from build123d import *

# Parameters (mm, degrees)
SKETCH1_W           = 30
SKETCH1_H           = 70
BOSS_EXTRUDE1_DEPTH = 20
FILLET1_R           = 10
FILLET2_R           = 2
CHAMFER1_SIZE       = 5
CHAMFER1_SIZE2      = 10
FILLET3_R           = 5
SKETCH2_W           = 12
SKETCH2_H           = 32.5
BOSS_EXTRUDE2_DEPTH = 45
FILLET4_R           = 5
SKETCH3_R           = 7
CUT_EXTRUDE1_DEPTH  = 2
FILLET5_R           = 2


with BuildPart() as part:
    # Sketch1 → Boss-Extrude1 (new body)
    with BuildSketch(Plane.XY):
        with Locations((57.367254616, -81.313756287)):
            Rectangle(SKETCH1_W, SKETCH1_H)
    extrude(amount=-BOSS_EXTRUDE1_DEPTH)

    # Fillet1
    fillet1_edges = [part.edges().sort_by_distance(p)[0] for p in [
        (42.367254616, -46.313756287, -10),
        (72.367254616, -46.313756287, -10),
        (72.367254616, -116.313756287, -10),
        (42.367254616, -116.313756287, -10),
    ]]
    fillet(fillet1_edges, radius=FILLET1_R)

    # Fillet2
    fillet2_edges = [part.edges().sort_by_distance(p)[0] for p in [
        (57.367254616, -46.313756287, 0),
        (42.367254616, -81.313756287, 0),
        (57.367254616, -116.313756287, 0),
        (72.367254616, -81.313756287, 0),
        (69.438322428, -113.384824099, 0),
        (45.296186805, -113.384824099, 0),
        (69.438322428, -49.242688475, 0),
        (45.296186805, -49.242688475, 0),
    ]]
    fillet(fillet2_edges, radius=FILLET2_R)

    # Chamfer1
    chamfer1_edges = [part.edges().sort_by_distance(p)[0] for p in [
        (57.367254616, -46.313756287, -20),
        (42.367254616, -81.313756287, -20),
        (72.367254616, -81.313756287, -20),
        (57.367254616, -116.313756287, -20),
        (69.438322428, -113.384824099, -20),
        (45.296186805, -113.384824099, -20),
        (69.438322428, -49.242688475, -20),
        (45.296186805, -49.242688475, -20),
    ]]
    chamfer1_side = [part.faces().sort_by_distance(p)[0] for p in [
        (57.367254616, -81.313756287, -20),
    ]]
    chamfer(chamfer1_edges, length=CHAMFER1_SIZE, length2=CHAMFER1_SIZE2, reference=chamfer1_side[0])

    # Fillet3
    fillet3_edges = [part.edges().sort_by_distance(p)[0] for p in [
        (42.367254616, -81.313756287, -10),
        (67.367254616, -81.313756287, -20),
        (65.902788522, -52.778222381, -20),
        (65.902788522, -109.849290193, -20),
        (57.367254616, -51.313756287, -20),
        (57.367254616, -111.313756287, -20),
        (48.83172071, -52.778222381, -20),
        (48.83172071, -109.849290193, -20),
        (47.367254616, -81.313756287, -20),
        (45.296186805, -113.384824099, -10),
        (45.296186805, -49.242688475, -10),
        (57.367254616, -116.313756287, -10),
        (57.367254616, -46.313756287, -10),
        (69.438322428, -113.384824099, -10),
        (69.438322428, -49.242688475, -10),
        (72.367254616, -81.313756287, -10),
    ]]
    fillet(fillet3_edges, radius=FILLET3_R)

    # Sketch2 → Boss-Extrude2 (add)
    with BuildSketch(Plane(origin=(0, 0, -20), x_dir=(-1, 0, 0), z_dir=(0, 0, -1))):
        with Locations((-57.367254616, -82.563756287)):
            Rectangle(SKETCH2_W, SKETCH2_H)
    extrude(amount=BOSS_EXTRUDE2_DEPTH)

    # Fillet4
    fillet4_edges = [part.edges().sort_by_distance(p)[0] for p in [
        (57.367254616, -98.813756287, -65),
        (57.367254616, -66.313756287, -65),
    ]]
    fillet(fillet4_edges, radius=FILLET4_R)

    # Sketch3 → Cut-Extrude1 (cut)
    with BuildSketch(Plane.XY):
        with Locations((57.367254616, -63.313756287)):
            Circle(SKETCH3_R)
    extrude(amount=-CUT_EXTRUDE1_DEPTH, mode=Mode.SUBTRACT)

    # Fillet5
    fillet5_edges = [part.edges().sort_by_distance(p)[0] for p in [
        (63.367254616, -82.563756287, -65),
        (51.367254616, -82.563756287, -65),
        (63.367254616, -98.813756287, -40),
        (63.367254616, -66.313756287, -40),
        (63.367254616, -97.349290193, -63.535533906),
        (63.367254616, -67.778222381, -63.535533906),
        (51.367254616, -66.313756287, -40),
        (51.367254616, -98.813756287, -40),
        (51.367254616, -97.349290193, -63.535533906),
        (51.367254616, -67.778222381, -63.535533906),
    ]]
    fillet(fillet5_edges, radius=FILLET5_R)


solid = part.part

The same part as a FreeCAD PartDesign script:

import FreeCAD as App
import Part
import Sketcher

V = App.Vector


def edges_at(feature, points):
    """Names of the edges that pass closest to the given points."""
    edges = feature.Shape.Edges
    near = lambda p: min(range(len(edges)), key=lambda i: edges[i].distToShape(Part.Vertex(*p))[0])
    return sorted({f"Edge{near(p) + 1}" for p in points})

doc = App.newDocument("Part")
body = doc.addObject("PartDesign::Body", "Body")

# Sketch on XY plane
sketch1 = body.newObject("Sketcher::SketchObject", "Sketch")
sketch1.AttachmentSupport = (doc.getObject("XY_Plane"), [""])
sketch1.MapMode = "FlatFace"
sketch1.addGeometry([
    Part.LineSegment(V(42.367255, -46.313756, 0), V(42.367255, -116.313756, 0)),
    Part.LineSegment(V(42.367255, -116.313756, 0), V(72.367255, -116.313756, 0)),
    Part.LineSegment(V(72.367255, -116.313756, 0), V(72.367255, -46.313756, 0)),
    Part.LineSegment(V(72.367255, -46.313756, 0), V(42.367255, -46.313756, 0)),
], False)
sketch1.addConstraint([
    Sketcher.Constraint("Coincident", 0, 2, 1, 1),
    Sketcher.Constraint("Coincident", 1, 2, 2, 1),
    Sketcher.Constraint("Coincident", 2, 2, 3, 1),
    Sketcher.Constraint("Coincident", 3, 2, 0, 1),
    Sketcher.Constraint("Vertical", 0),
    Sketcher.Constraint("Horizontal", 1),
    Sketcher.Constraint("Vertical", 2),
    Sketcher.Constraint("Horizontal", 3),
    Sketcher.Constraint("DistanceX", 1, 1, 1, 2, 30.0),
    Sketcher.Constraint("DistanceY", 0, 2, 0, 1, 70.0),
    Sketcher.Constraint("DistanceX", -1, 1, 0, 2, 42.367255),
    Sketcher.Constraint("DistanceY", 0, 2, -1, 1, 116.313756),
])
pad1 = body.newObject("PartDesign::Pad", "Pad")
pad1.Profile = sketch1
pad1.Length = 20
pad1.Reversed = True
doc.recompute()

fillet = body.newObject("PartDesign::Fillet", "Fillet")
fillet.Base = (pad1, edges_at(pad1, [
    (42.367, -46.314, -10),
    (72.367, -46.314, -10),
    (72.367, -116.314, -10),
    (42.367, -116.314, -10),
]))
fillet.Radius = 10
doc.recompute()

fillet2 = body.newObject("PartDesign::Fillet", "Fillet001")
fillet2.Base = (fillet, edges_at(fillet, [
    (57.367, -46.314, 0),
    (42.367, -81.314, 0),
    (57.367, -116.314, 0),
    (72.367, -81.314, 0),
    (69.438, -113.385, 0),
    (45.296, -113.385, 0),
    (69.438, -49.243, 0),
    (45.296, -49.243, 0),
]))
fillet2.Radius = 2
doc.recompute()

chamfer = body.newObject("PartDesign::Chamfer", "Chamfer")
chamfer.Base = (fillet2, edges_at(fillet2, [
    (57.367, -46.314, -20),
    (42.367, -81.314, -20),
    (72.367, -81.314, -20),
    (57.367, -116.314, -20),
    (69.438, -113.385, -20),
    (45.296, -113.385, -20),
    (69.438, -49.243, -20),
    (45.296, -49.243, -20),
]))
chamfer.ChamferType = "Two distances"
chamfer.Size = 5
chamfer.Size2 = 10
doc.recompute()

fillet3 = body.newObject("PartDesign::Fillet", "Fillet002")
fillet3.Base = (chamfer, edges_at(chamfer, [
    (42.367, -81.314, -10),
    (67.367, -81.314, -20),
    (65.903, -52.778, -20),
    (65.903, -109.849, -20),
    (57.367, -51.314, -20),
    (57.367, -111.314, -20),
    (48.832, -52.778, -20),
    (48.832, -109.849, -20),
    (47.367, -81.314, -20),
    (45.296, -113.385, -10),
    (45.296, -49.243, -10),
    (57.367, -116.314, -10),
    (57.367, -46.314, -10),
    (69.438, -113.385, -10),
    (69.438, -49.243, -10),
    (72.367, -81.314, -10),
]))
fillet3.Radius = 5

# Sketch on XY plane
sketch2 = body.newObject("Sketcher::SketchObject", "Sketch001")
sketch2.AttachmentSupport = (doc.getObject("XY_Plane"), [""])
sketch2.MapMode = "FlatFace"
sketch2.AttachmentOffset = App.Placement(V(0, 0, -20), App.Rotation())
sketch2.addGeometry([
    Part.LineSegment(V(63.367255, -66.313756, 0), V(63.367255, -98.813756, 0)),
    Part.LineSegment(V(63.367255, -98.813756, 0), V(51.367255, -98.813756, 0)),
    Part.LineSegment(V(51.367255, -98.813756, 0), V(51.367255, -66.313756, 0)),
    Part.LineSegment(V(51.367255, -66.313756, 0), V(63.367255, -66.313756, 0)),
], False)
sketch2.addConstraint([
    Sketcher.Constraint("Coincident", 0, 2, 1, 1),
    Sketcher.Constraint("Coincident", 1, 2, 2, 1),
    Sketcher.Constraint("Coincident", 2, 2, 3, 1),
    Sketcher.Constraint("Coincident", 3, 2, 0, 1),
    Sketcher.Constraint("Vertical", 0),
    Sketcher.Constraint("Horizontal", 1),
    Sketcher.Constraint("Vertical", 2),
    Sketcher.Constraint("Horizontal", 3),
    Sketcher.Constraint("DistanceX", 1, 2, 1, 1, 12.0),
    Sketcher.Constraint("DistanceY", 0, 2, 0, 1, 32.5),
    Sketcher.Constraint("DistanceX", -1, 1, 0, 2, 63.367255),
    Sketcher.Constraint("DistanceY", 0, 2, -1, 1, 98.813756),
])
pad2 = body.newObject("PartDesign::Pad", "Pad001")
pad2.Profile = sketch2
pad2.Length = 45
pad2.Reversed = True
doc.recompute()

fillet4 = body.newObject("PartDesign::Fillet", "Fillet003")
fillet4.Base = (pad2, edges_at(pad2, [(57.367, -98.814, -65), (57.367, -66.314, -65)]))
fillet4.Radius = 5

# Sketch on XY plane
sketch3 = body.newObject("Sketcher::SketchObject", "Sketch002")
sketch3.AttachmentSupport = (doc.getObject("XY_Plane"), [""])
sketch3.MapMode = "FlatFace"
sketch3.addGeometry(Part.Circle(V(57.367255, -63.313756, 0), V(0, 0, 1), 7), False)
sketch3.addConstraint([
    Sketcher.Constraint("Diameter", 0, 14.0),
    Sketcher.Constraint("DistanceX", -1, 1, 0, 3, 57.367255),
    Sketcher.Constraint("DistanceY", 0, 3, -1, 1, 63.313756),
])
pocket1 = body.newObject("PartDesign::Pocket", "Pocket")
pocket1.Profile = sketch3
pocket1.Length = 2
doc.recompute()

fillet5 = body.newObject("PartDesign::Fillet", "Fillet004")
fillet5.Base = (pocket1, edges_at(pocket1, [
    (63.367, -82.564, -65),
    (51.367, -82.564, -65),
    (63.367, -98.814, -40),
    (63.367, -66.314, -40),
    (63.367, -97.349, -63.536),
    (63.367, -67.778, -63.536),
    (51.367, -66.314, -40),
    (51.367, -98.814, -40),
    (51.367, -97.349, -63.536),
    (51.367, -67.778, -63.536),
]))
fillet5.Radius = 2

doc.recompute()
